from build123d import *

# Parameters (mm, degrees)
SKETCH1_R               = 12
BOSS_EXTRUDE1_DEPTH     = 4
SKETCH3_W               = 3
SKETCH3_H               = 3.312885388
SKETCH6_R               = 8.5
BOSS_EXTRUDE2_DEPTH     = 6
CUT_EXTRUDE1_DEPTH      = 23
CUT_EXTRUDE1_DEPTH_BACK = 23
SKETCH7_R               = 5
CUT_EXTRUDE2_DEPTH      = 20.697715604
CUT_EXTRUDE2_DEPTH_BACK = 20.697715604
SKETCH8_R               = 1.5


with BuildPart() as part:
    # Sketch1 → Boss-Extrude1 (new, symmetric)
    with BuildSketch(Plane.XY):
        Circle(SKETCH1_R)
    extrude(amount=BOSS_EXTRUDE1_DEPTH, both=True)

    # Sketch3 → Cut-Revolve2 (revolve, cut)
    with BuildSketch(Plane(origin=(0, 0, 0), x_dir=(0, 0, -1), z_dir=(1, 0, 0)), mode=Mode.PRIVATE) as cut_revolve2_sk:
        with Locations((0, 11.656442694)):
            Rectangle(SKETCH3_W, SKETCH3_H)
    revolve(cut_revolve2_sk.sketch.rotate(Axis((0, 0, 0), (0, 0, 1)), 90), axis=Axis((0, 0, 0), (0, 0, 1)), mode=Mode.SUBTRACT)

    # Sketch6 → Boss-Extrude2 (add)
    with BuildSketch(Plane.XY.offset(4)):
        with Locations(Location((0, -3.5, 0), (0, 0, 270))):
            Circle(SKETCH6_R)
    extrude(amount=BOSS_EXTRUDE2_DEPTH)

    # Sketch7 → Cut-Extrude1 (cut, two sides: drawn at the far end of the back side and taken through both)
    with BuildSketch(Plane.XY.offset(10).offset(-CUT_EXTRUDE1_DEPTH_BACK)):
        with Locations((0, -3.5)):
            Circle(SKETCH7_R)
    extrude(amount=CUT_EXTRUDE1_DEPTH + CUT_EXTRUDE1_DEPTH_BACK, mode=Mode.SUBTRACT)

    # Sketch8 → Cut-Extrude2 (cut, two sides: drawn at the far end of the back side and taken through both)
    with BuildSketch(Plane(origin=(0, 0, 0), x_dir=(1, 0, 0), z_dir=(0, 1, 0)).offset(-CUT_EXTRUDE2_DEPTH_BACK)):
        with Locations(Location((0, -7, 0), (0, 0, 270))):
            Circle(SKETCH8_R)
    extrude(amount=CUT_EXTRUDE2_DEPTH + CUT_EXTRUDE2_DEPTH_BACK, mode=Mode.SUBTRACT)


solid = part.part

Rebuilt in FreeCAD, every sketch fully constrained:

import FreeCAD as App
import Part
import Sketcher
from FreeCAD import Vector


def add_polygon(sketch, points):
    """Adds a closed chain of lines whose ends are joined by coincident constraints."""
    first, n = sketch.GeometryCount, len(points)
    for a, b in zip(points, points[1:] + points[:1]):
        sketch.addGeometry(Part.LineSegment(App.Vector(*a, 0), App.Vector(*b, 0)), False)
    for i in range(n):
        sketch.addConstraint(Sketcher.Constraint("Coincident", first + i, 2, first + (i + 1) % n, 1))

doc = App.newDocument("Part")
params = doc.addObject("Spreadsheet::Sheet", "Params")
for row, (alias, value) in enumerate([
    ("sketch1_diameter", "24 mm"),
    ("pad1_length", "8 mm"),
    ("sketch2_height", "3 mm"),
    ("groove_angle", "360 deg"),
    ("sketch3_diameter", "17 mm"),
    ("pad2_length", "6 mm"),
    ("sketch4_diameter", "10 mm"),
    ("sketch5_diameter", "3 mm"),
], start=1):
    params.set(f"A{row}", alias)
    params.set(f"B{row}", "=" + value)
    params.setAlias(f"B{row}", alias)

body = doc.addObject("PartDesign::Body", "Body")

# Sketch on XY plane
sketch1 = doc.addObject("Sketcher::SketchObject", "Sketch")
body.addObject(sketch1)
sketch1.AttachmentSupport = (doc.XY_Plane, [""])
sketch1.MapMode = "FlatFace"
sketch1.addGeometry(Part.Circle(Vector(0, 0, 0), Vector(0, 0, 1), 12), False)
sketch1.addConstraint([
    Sketcher.Constraint("Coincident", 0, 3, -1, 1),
    Sketcher.Constraint("Diameter", 0, 24.0),
])
sketch1.setExpression("Constraints[1]", "Params.sketch1_diameter")
pad1 = doc.addObject("PartDesign::Pad", "Pad")
body.addObject(pad1)
pad1.Profile = sketch1
pad1.setExpression("Length", "Params.pad1_length")
pad1.Midplane = True

# Sketch on YZ plane
sketch2 = doc.addObject("Sketcher::SketchObject", "Sketch001")
body.addObject(sketch2)
sketch2.AttachmentSupport = (doc.YZ_Plane, [""])
sketch2.MapMode = "FlatFace"
add_polygon(sketch2, [(13.312885, 1.5), (10, 1.5), (10, -1.5), (13.312885, -1.5)])  # lines 0-3
sketch2.addConstraint([
    Sketcher.Constraint("Horizontal", 0),
    Sketcher.Constraint("Vertical", 1),
    Sketcher.Constraint("Horizontal", 2),
    Sketcher.Constraint("Vertical", 3),
    Sketcher.Constraint("DistanceY", 1, 2, 1, 1, 3.0),
    Sketcher.Constraint("DistanceX", -1, 1, 0, 2, 10.0),
    Sketcher.Constraint("DistanceY", -1, 1, 0, 2, 1.5),
    Sketcher.Constraint("DistanceX", 0, 2, 0, 1, 3.312885),
])
sketch2.setExpression("Constraints[8]", "Params.sketch2_height")
groove = doc.addObject("PartDesign::Groove", "Groove")
body.addObject(groove)
groove.Profile = sketch2
groove.ReferenceAxis = (sketch2, ["V_Axis"])
groove.setExpression("Angle", "Params.groove_angle")

# Sketch on XY plane
sketch3 = doc.addObject("Sketcher::SketchObject", "Sketch002")
body.addObject(sketch3)
sketch3.AttachmentSupport = (doc.XY_Plane, [""])
sketch3.MapMode = "FlatFace"
sketch3.AttachmentOffset = App.Placement(Vector(0, 0, 4), App.Rotation())
sketch3.addGeometry(Part.Circle(Vector(0, -3.5, 0), Vector(0, 0, 1), 8.5), False)
sketch3.addConstraint([
    Sketcher.Constraint("PointOnObject", 0, 3, -2),
    Sketcher.Constraint("Diameter", 0, 17.0),
    Sketcher.Constraint("DistanceY", 0, 3, -1, 1, 3.5),
])
sketch3.setExpression("Constraints[1]", "Params.sketch3_diameter")
pad2 = doc.addObject("PartDesign::Pad", "Pad001")
body.addObject(pad2)
pad2.Profile = sketch3
pad2.setExpression("Length", "Params.pad2_length")

# Sketch on XY plane
sketch4 = doc.addObject("Sketcher::SketchObject", "Sketch003")
body.addObject(sketch4)
sketch4.AttachmentSupport = (doc.XY_Plane, [""])
sketch4.MapMode = "FlatFace"
sketch4.AttachmentOffset = App.Placement(Vector(0, 0, 10), App.Rotation())
sketch4.addGeometry(Part.Circle(Vector(0, -3.5, 0), Vector(0, 0, 1), 5), False)
sketch4.addConstraint([
    Sketcher.Constraint("PointOnObject", 0, 3, -2),
    Sketcher.Constraint("Diameter", 0, 10.0),
    Sketcher.Constraint("DistanceY", 0, 3, -1, 1, 3.5),
])
sketch4.setExpression("Constraints[1]", "Params.sketch4_diameter")
pocket1 = doc.addObject("PartDesign::Pocket", "Pocket")
body.addObject(pocket1)
pocket1.Profile = sketch4
pocket1.Type = "ThroughAll"
pocket1.Midplane = True

# Sketch on XZ plane
sketch5 = doc.addObject("Sketcher::SketchObject", "Sketch004")
body.addObject(sketch5)
sketch5.AttachmentSupport = (doc.XZ_Plane, [""])
sketch5.MapMode = "FlatFace"
sketch5.addGeometry(Part.Circle(Vector(0, 7, 0), Vector(0, 0, 1), 1.5), False)
sketch5.addConstraint([
    Sketcher.Constraint("PointOnObject", 0, 3, -2),
    Sketcher.Constraint("Diameter", 0, 3.0),
    Sketcher.Constraint("DistanceY", -1, 1, 0, 3, 7.0),
])
sketch5.setExpression("Constraints[1]", "Params.sketch5_diameter")
pocket2 = doc.addObject("PartDesign::Pocket", "Pocket001")
body.addObject(pocket2)
pocket2.Profile = sketch5
pocket2.Type = "ThroughAll"
pocket2.Midplane = True

doc.recompute()
